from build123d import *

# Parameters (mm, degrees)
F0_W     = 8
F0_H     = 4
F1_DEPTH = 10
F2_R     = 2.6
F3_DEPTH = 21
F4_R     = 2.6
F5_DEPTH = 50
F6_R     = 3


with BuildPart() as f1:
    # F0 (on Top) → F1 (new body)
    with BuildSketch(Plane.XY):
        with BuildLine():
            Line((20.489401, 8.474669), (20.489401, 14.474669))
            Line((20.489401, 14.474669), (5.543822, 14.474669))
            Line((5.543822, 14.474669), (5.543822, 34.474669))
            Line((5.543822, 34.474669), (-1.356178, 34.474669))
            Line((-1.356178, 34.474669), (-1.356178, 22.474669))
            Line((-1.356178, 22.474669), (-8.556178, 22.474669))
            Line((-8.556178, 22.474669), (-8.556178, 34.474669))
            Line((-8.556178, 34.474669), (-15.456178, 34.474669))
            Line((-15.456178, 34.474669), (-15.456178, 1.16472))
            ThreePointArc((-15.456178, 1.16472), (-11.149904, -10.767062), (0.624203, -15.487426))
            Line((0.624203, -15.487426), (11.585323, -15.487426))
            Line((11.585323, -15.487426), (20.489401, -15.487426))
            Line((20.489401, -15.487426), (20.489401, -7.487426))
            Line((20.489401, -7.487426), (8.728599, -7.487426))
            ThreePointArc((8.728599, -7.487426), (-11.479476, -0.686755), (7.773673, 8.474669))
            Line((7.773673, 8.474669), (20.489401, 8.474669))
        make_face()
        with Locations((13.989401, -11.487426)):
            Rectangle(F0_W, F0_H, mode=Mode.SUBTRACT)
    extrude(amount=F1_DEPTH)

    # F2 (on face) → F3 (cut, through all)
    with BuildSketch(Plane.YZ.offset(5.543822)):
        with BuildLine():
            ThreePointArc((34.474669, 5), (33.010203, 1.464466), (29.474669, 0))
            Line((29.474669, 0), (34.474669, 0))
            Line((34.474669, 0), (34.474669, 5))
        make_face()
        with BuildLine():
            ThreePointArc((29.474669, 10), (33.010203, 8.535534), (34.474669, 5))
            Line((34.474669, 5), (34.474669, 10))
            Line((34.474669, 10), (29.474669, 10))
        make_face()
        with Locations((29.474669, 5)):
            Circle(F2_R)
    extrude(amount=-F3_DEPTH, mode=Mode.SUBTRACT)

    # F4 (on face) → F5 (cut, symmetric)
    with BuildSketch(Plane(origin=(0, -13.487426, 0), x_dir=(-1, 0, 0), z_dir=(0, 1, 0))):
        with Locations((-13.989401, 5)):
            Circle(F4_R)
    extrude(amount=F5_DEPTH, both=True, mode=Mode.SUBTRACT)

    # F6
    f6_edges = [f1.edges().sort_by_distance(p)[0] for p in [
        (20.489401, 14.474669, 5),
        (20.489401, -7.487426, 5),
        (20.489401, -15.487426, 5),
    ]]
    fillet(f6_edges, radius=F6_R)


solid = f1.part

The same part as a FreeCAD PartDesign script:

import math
import FreeCAD as App
import Part
import Sketcher
from FreeCAD import Vector


def edges_at(feature, points):
    """Names of the edges that pass closest to the given points."""
    edges = feature.Shape.Edges
    near = lambda p: min(range(len(edges)), key=lambda i: edges[i].distToShape(Part.Vertex(*p))[0])
    return sorted({f"Edge{near(p) + 1}" for p in points})


def add_polygon(sketch, points):
    """Adds a closed chain of lines whose ends are joined by coincident constraints."""
    first, n = sketch.GeometryCount, len(points)
    for a, b in zip(points, points[1:] + points[:1]):
        sketch.addGeometry(Part.LineSegment(App.Vector(*a, 0), App.Vector(*b, 0)), False)
    for i in range(n):
        sketch.addConstraint(Sketcher.Constraint("Coincident", first + i, 2, first + (i + 1) % n, 1))

doc = App.newDocument("Part")
body = doc.addObject("PartDesign::Body", "Body")

# Sketch on XY plane
sketch1 = doc.addObject("Sketcher::SketchObject", "Sketch")
body.addObject(sketch1)
sketch1.AttachmentSupport = (doc.XY_Plane, [""])
sketch1.MapMode = "FlatFace"
sketch1.addGeometry(Part.LineSegment(Vector(20.5, 8.5, 0), Vector(20.5, 14.5, 0)), False)  # 0
sketch1.addGeometry(Part.LineSegment(Vector(20.5, 14.5, 0), Vector(5.5, 14.5, 0)), False)  # 1
sketch1.addGeometry(Part.LineSegment(Vector(5.5, 14.5, 0), Vector(5.5, 34.5, 0)), False)  # 2
sketch1.addGeometry(Part.LineSegment(Vector(5.5, 34.5, 0), Vector(-1.4, 34.5, 0)), False)  # 3
sketch1.addGeometry(Part.LineSegment(Vector(-1.4, 34.5, 0), Vector(-1.4, 22.5, 0)), False)  # 4
sketch1.addGeometry(Part.LineSegment(Vector(-1.4, 22.5, 0), Vector(-8.6, 22.5, 0)), False)  # 5
sketch1.addGeometry(Part.LineSegment(Vector(-8.6, 22.5, 0), Vector(-8.6, 34.5, 0)), False)  # 6
sketch1.addGeometry(Part.LineSegment(Vector(-8.6, 34.5, 0), Vector(-15.5, 34.5, 0)), False)  # 7
sketch1.addGeometry(Part.LineSegment(Vector(-15.5, 34.5, 0), Vector(-15.5, 1.2, 0)), False)  # 8
sketch1.addGeometry(Part.ArcOfCircle(Part.Circle(Vector(0, 0, 0), Vector(0, 0, 1), 15.5), math.radians(176), math.radians(272)), False)  # 9
sketch1.addGeometry(Part.LineSegment(Vector(0.6, -15.5, 0), Vector(20.5, -15.5, 0)), False)  # 10
sketch1.addGeometry(Part.LineSegment(Vector(20.5, -15.5, 0), Vector(20.5, -7.5, 0)), False)  # 11
sketch1.addGeometry(Part.LineSegment(Vector(20.5, -7.5, 0), Vector(8.7, -7.5, 0)), False)  # 12
sketch1.addGeometry(Part.ArcOfCircle(Part.Circle(Vector(0, 0, 0), Vector(0, 0, 1), 11.5), math.radians(47), math.radians(319)), False)  # 13
sketch1.addGeometry(Part.LineSegment(Vector(7.8, 8.5, 0), Vector(20.5, 8.5, 0)), False)  # 14
add_polygon(sketch1, [(18, -13.5), (10, -13.5), (10, -9.5), (18, -9.5)])  # lines 15-18
sketch1.addConstraint([
    Sketcher.Constraint("Coincident", 0, 2, 1, 1),
    Sketcher.Constraint("Coincident", 1, 2, 2, 1),
    Sketcher.Constraint("Coincident", 2, 2, 3, 1),
    Sketcher.Constraint("Coincident", 3, 2, 4, 1),
    Sketcher.Constraint("Coincident", 4, 2, 5, 1),
    Sketcher.Constraint("Coincident", 5, 2, 6, 1),
    Sketcher.Constraint("Coincident", 6, 2, 7, 1),
    Sketcher.Constraint("Coincident", 7, 2, 8, 1),
    Sketcher.Constraint("Coincident", 8, 2, 9, 1),
    Sketcher.Constraint("Coincident", 9, 2, 10, 1),
    Sketcher.Constraint("Coincident", 10, 2, 11, 1),
    Sketcher.Constraint("Coincident", 11, 2, 12, 1),
    Sketcher.Constraint("Coincident", 12, 2, 13, 2),
    Sketcher.Constraint("Coincident", 13, 1, 14, 1),
    Sketcher.Constraint("Coincident", 14, 2, 0, 1),
    Sketcher.Constraint("Vertical", 0),
    Sketcher.Constraint("Horizontal", 1),
    Sketcher.Constraint("Vertical", 2),
    Sketcher.Constraint("Horizontal", 3),
    Sketcher.Constraint("Vertical", 4),
    Sketcher.Constraint("Horizontal", 5),
    Sketcher.Constraint("Vertical", 6),
    Sketcher.Constraint("Horizontal", 7),
    Sketcher.Constraint("Vertical", 8),
    Sketcher.Constraint("Horizontal", 10),
    Sketcher.Constraint("Vertical", 11),
    Sketcher.Constraint("Horizontal", 12),
    Sketcher.Constraint("Horizontal", 14),
    Sketcher.Constraint("Horizontal", 15),
    Sketcher.Constraint("Vertical", 16),
    Sketcher.Constraint("Horizontal", 17),
    Sketcher.Constraint("Vertical", 18),
    Sketcher.Constraint("Coincident", 9, 3, -1, 1),
    Sketcher.Constraint("Coincident", 13, 3, -1, 1),
    Sketcher.Constraint("Horizontal", 3, 2, 6, 2),
    Sketcher.Constraint("Vertical", 0, 2, 10, 2),
    Sketcher.Constraint("Equal", 3, 7),
    Sketcher.Constraint("Equal", 17, 11),
    Sketcher.Constraint("Radius", 9, 15.500001),
    Sketcher.Constraint("Radius", 13, 11.5),
    Sketcher.Constraint("DistanceX", 15, 2, 15, 1, 8.0),
    Sketcher.Constraint("DistanceY", 0, 1, 0, 2, 6.0),
    Sketcher.Constraint("DistanceY", 2, 1, 2, 2, 20.0),
    Sketcher.Constraint("DistanceY", 4, 2, 4, 1, 12.0),
    Sketcher.Constraint("DistanceY", 16, 1, 16, 2, 4.0),
    Sketcher.Constraint("DistanceX", 3, 2, 3, 1, 6.9),
    Sketcher.Constraint("DistanceX", 5, 2, 5, 1, 7.2),
    Sketcher.Constraint("DistanceY", 15, 2, 12, 2, 6.0),
    Sketcher.Constraint("DistanceX", 15, 2, 10, 2, 10.5),
    Sketcher.Constraint("DistanceX", 1, 2, 1, 1, 14.945579),
    Sketcher.Constraint("DistanceX", 14, 1, 14, 2, 12.715728),
    Sketcher.Constraint("DistanceY", 8, 2, 8, 1, 33.309949),
    Sketcher.Constraint("DistanceX", -1, 1, 12, 2, 8.728599),
])
pad1 = doc.addObject("PartDesign::Pad", "Pad")
body.addObject(pad1)
pad1.Profile = sketch1
pad1.Length = 10

# Sketch on YZ plane
sketch2 = doc.addObject("Sketcher::SketchObject", "Sketch001")
body.addObject(sketch2)
sketch2.AttachmentSupport = (doc.YZ_Plane, [""])
sketch2.MapMode = "FlatFace"
sketch2.AttachmentOffset = App.Placement(Vector(0, 0, 5.543822), App.Rotation())
sketch2.addGeometry([
    Part.ArcOfCircle(Part.Circle(Vector(29.5, 5, 0), Vector(0, 0, 1), 5), math.radians(-90), math.radians(0)),  # 0
    Part.LineSegment(Vector(29.5, 0, 0), Vector(34.5, 0, 0)),  # 1
    Part.LineSegment(Vector(34.5, 0, 0), Vector(34.5, 5, 0)),  # 2
    Part.ArcOfCircle(Part.Circle(Vector(29.5, 5, 0), Vector(0, 0, 1), 5), math.radians(0), math.radians(90)),  # 3
    Part.LineSegment(Vector(34.5, 5, 0), Vector(34.5, 10, 0)),  # 4
    Part.LineSegment(Vector(34.5, 10, 0), Vector(29.5, 10, 0)),  # 5
    Part.Circle(Vector(29.5, 5, 0), Vector(0, 0, 1), 2.6),  # 6
], False)
sketch2.addConstraint([
    Sketcher.Constraint("Tangent", 0, 1, 1, 1),
    Sketcher.Constraint("Coincident", 1, 2, 2, 1),
    Sketcher.Constraint("Tangent", 2, 2, 0, 2),
    Sketcher.Constraint("Tangent", 3, 1, 4, 1),
    Sketcher.Constraint("Coincident", 4, 2, 5, 1),
    Sketcher.Constraint("Tangent", 5, 2, 3, 2),
    Sketcher.Constraint("Horizontal", 1),
    Sketcher.Constraint("Vertical", 2),
    Sketcher.Constraint("Vertical", 4),
    Sketcher.Constraint("Horizontal", 5),
    Sketcher.Constraint("Coincident", 3, 3, 0, 3),
    Sketcher.Constraint("Coincident", 6, 3, 0, 3),
    Sketcher.Constraint("Equal", 0, 3),
    Sketcher.Constraint("PointOnObject", 0, 1, -1),
    Sketcher.Constraint("Radius", 0, 5.0),
    Sketcher.Constraint("Diameter", 6, 5.2),
    Sketcher.Constraint("DistanceX", -1, 1, 0, 3, 29.474669),
])
pocket1 = doc.addObject("PartDesign::Pocket", "Pocket")
body.addObject(pocket1)
pocket1.Profile = sketch2
pocket1.Type = "ThroughAll"

# Sketch on XZ plane
sketch3 = doc.addObject("Sketcher::SketchObject", "Sketch002")
body.addObject(sketch3)
sketch3.AttachmentSupport = (doc.XZ_Plane, [""])
sketch3.MapMode = "FlatFace"
sketch3.AttachmentOffset = App.Placement(Vector(0, 0, 13.487426), App.Rotation())
sketch3.addGeometry(Part.Circle(Vector(14, 5, 0), Vector(0, 0, 1), 2.6), False)
sketch3.addConstraint([
    Sketcher.Constraint("Diameter", 0, 5.2),
    Sketcher.Constraint("DistanceY", -1, 1, 0, 3, 5.0),
    Sketcher.Constraint("DistanceX", -1, 1, 0, 3, 13.989401),
])
pocket2 = doc.addObject("PartDesign::Pocket", "Pocket001")
body.addObject(pocket2)
pocket2.Profile = sketch3
pocket2.Length = 100
pocket2.Midplane = True
doc.recompute()

fillet = doc.addObject("PartDesign::Fillet", "Fillet")
body.addObject(fillet)
fillet.Base = (pocket2, edges_at(pocket2, [(20.489, 14.475, 5), (20.489, -7.487, 5), (20.489, -15.487, 5)]))
fillet.Radius = 3

doc.recompute()
